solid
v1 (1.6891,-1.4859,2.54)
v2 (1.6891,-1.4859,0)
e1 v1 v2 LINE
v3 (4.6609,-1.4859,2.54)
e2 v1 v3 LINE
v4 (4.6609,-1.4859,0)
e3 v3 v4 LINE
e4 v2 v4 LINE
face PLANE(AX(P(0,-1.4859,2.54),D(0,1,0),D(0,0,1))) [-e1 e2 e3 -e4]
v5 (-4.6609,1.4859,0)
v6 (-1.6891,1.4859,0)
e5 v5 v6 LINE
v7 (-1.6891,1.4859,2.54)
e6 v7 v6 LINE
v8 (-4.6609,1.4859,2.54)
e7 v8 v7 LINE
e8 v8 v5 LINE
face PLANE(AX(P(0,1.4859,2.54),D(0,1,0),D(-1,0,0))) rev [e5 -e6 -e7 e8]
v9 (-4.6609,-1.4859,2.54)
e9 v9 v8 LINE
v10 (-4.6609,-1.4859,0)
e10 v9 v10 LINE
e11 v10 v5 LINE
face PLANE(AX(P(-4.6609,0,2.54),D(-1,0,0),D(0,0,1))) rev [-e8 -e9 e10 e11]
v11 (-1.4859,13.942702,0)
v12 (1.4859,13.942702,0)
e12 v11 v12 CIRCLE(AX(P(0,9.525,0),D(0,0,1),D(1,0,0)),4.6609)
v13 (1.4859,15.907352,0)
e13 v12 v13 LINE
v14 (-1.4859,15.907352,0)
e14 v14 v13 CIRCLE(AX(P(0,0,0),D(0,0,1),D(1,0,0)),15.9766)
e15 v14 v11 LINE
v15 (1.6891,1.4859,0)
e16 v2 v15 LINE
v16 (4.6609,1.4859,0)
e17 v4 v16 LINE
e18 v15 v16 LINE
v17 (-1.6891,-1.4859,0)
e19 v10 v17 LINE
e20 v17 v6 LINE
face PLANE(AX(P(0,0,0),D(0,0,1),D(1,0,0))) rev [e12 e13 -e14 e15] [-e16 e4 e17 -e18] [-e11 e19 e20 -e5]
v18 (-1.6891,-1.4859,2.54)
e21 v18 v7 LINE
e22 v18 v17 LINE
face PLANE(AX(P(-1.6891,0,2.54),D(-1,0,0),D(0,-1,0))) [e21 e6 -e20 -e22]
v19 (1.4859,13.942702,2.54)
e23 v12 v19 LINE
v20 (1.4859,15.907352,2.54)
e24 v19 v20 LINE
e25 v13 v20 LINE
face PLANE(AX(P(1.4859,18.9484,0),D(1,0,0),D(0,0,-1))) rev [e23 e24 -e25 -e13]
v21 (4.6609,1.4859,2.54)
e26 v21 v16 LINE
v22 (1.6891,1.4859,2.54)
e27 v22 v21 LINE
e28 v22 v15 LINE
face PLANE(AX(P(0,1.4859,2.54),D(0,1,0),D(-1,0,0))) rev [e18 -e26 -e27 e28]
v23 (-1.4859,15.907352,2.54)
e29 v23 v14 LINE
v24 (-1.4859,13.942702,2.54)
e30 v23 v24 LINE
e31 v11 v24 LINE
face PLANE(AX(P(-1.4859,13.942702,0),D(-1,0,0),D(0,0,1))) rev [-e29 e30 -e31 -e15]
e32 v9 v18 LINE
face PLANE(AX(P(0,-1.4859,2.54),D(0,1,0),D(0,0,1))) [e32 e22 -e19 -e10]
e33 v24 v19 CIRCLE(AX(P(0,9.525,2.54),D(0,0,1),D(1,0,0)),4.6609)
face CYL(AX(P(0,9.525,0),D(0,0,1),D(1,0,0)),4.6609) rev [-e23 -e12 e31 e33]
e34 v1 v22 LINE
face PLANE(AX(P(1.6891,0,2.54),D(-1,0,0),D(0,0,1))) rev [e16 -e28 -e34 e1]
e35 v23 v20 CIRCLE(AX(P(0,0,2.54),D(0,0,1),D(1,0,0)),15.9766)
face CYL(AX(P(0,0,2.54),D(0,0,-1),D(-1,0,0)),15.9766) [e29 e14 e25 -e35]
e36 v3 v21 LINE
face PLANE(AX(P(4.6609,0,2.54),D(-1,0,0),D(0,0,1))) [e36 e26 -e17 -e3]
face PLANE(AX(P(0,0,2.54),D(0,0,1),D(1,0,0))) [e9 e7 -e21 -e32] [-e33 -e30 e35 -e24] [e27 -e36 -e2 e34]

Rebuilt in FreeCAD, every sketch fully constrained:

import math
import FreeCAD as App
import Part
import Sketcher
Q = App.Units.Quantity


def add_polygon(sketch, points):
    """Adds a closed chain of lines whose ends are joined by coincident constraints."""
    first, n = sketch.GeometryCount, len(points)
    for a, b in zip(points, points[1:] + points[:1]):
        sketch.addGeometry(Part.LineSegment(App.Vector(*a, 0), App.Vector(*b, 0)), False)
    for i in range(n):
        sketch.addConstraint(Sketcher.Constraint("Coincident", first + i, 2, first + (i + 1) % n, 1))

doc = App.newDocument("Part")
body = doc.addObject("PartDesign::Body", "Body")

sketch1 = body.newObject("Sketcher::SketchObject", "Sketch")
sketch1.AttachmentSupport = (doc.getObject("XY_Plane"), [""])
sketch1.MapMode = "FlatFace"
sketch1.addGeometry(Part.Circle(App.Vector(0, 0, 0), App.Vector(0, 0, 1), 16), False)
add_polygon(sketch1, [(-1.7, -1.5), (-4.7, -1.5), (-4.7, 1.5), (-1.7, 1.5)])
add_polygon(sketch1, [(4.7, -1.5), (1.7, -1.5), (1.7, 1.5), (4.7, 1.5)])
sketch1.addConstraint(Sketcher.Constraint("Horizontal", 1))
sketch1.addConstraint(Sketcher.Constraint("Vertical", 2))
sketch1.addConstraint(Sketcher.Constraint("Horizontal", 3))
sketch1.addConstraint(Sketcher.Constraint("Vertical", 4))
sketch1.addConstraint(Sketcher.Constraint("Horizontal", 5))
sketch1.addConstraint(Sketcher.Constraint("Vertical", 6))
sketch1.addConstraint(Sketcher.Constraint("Horizontal", 7))
sketch1.addConstraint(Sketcher.Constraint("Vertical", 8))
sketch1.addConstraint(Sketcher.Constraint("Coincident", 0, 3, -1, 1))
sketch1.addConstraint(Sketcher.Constraint("Symmetric", 3, 2, 5, 2, -1, 1))
sketch1.addConstraint(Sketcher.Constraint("Symmetric", 1, 2, 7, 2, -1, 1))
sketch1.addConstraint(Sketcher.Constraint("Horizontal", 4, 2, 5, 2))
sketch1.addConstraint(Sketcher.Constraint("Equal", 7, 2))
sketch1.addConstraint(Sketcher.Constraint("Diameter", 0, Q("1.258 in")))
sketch1.addConstraint(Sketcher.Constraint("DistanceX", 1, 2, 1, 1, Q("0.117 in")))
sketch1.addConstraint(Sketcher.Constraint("DistanceX", 1, 2, 5, 2, Q("0.25 in")))
pad1 = body.newObject("PartDesign::Pad", "Pad")
pad1.Profile = sketch1
pad1.Length = Q("0.1 in")

sketch2 = body.newObject("Sketcher::SketchObject", "Sketch001")
sketch2.AttachmentSupport = (doc.getObject("XY_Plane"), [""])
sketch2.MapMode = "FlatFace"
sketch2.AttachmentOffset = App.Placement(App.Vector(0, 0, 0.1 * 25.4), App.Rotation())
sketch2.addGeometry(Part.LineSegment(App.Vector(-1.5, 18.9, 0), App.Vector(-1.5, 13.9, 0)), False)
sketch2.addGeometry(Part.ArcOfCircle(Part.Circle(App.Vector(0, 9.5, 0), App.Vector(0, 0, 1), 4.7), math.radians(109), math.radians(431)), False)
sketch2.addGeometry(Part.LineSegment(App.Vector(1.5, 13.9, 0), App.Vector(1.5, 18.9, 0)), False)
sketch2.addGeometry(Part.LineSegment(App.Vector(1.5, 18.9, 0), App.Vector(-1.5, 18.9, 0)), False)
sketch2.addConstraint(Sketcher.Constraint("Coincident", 0, 2, 1, 1))
sketch2.addConstraint(Sketcher.Constraint("Coincident", 1, 2, 2, 1))
sketch2.addConstraint(Sketcher.Constraint("Coincident", 2, 2, 3, 1))
sketch2.addConstraint(Sketcher.Constraint("Coincident", 3, 2, 0, 1))
sketch2.addConstraint(Sketcher.Constraint("Vertical", 0))
sketch2.addConstraint(Sketcher.Constraint("Vertical", 2))
sketch2.addConstraint(Sketcher.Constraint("Horizontal", 3))
sketch2.addConstraint(Sketcher.Constraint("Symmetric", 0, 2, 1, 2, -2))
sketch2.addConstraint(Sketcher.Constraint("Radius", 1, Q("0.1835 in")))
sketch2.addConstraint(Sketcher.Constraint("DistanceX", 3, 2, 3, 1, Q("0.117 in")))
sketch2.addConstraint(Sketcher.Constraint("DistanceY", -1, 1, 1, 3, Q("0.375 in")))
sketch2.addConstraint(Sketcher.Constraint("DistanceY", -1, 1, 2, 2, Q("0.746 in")))
pocket1 = body.newObject("PartDesign::Pocket", "Pocket")
pocket1.Profile = sketch2
pocket1.Length = Q("0.1 in")

doc.recompute()
